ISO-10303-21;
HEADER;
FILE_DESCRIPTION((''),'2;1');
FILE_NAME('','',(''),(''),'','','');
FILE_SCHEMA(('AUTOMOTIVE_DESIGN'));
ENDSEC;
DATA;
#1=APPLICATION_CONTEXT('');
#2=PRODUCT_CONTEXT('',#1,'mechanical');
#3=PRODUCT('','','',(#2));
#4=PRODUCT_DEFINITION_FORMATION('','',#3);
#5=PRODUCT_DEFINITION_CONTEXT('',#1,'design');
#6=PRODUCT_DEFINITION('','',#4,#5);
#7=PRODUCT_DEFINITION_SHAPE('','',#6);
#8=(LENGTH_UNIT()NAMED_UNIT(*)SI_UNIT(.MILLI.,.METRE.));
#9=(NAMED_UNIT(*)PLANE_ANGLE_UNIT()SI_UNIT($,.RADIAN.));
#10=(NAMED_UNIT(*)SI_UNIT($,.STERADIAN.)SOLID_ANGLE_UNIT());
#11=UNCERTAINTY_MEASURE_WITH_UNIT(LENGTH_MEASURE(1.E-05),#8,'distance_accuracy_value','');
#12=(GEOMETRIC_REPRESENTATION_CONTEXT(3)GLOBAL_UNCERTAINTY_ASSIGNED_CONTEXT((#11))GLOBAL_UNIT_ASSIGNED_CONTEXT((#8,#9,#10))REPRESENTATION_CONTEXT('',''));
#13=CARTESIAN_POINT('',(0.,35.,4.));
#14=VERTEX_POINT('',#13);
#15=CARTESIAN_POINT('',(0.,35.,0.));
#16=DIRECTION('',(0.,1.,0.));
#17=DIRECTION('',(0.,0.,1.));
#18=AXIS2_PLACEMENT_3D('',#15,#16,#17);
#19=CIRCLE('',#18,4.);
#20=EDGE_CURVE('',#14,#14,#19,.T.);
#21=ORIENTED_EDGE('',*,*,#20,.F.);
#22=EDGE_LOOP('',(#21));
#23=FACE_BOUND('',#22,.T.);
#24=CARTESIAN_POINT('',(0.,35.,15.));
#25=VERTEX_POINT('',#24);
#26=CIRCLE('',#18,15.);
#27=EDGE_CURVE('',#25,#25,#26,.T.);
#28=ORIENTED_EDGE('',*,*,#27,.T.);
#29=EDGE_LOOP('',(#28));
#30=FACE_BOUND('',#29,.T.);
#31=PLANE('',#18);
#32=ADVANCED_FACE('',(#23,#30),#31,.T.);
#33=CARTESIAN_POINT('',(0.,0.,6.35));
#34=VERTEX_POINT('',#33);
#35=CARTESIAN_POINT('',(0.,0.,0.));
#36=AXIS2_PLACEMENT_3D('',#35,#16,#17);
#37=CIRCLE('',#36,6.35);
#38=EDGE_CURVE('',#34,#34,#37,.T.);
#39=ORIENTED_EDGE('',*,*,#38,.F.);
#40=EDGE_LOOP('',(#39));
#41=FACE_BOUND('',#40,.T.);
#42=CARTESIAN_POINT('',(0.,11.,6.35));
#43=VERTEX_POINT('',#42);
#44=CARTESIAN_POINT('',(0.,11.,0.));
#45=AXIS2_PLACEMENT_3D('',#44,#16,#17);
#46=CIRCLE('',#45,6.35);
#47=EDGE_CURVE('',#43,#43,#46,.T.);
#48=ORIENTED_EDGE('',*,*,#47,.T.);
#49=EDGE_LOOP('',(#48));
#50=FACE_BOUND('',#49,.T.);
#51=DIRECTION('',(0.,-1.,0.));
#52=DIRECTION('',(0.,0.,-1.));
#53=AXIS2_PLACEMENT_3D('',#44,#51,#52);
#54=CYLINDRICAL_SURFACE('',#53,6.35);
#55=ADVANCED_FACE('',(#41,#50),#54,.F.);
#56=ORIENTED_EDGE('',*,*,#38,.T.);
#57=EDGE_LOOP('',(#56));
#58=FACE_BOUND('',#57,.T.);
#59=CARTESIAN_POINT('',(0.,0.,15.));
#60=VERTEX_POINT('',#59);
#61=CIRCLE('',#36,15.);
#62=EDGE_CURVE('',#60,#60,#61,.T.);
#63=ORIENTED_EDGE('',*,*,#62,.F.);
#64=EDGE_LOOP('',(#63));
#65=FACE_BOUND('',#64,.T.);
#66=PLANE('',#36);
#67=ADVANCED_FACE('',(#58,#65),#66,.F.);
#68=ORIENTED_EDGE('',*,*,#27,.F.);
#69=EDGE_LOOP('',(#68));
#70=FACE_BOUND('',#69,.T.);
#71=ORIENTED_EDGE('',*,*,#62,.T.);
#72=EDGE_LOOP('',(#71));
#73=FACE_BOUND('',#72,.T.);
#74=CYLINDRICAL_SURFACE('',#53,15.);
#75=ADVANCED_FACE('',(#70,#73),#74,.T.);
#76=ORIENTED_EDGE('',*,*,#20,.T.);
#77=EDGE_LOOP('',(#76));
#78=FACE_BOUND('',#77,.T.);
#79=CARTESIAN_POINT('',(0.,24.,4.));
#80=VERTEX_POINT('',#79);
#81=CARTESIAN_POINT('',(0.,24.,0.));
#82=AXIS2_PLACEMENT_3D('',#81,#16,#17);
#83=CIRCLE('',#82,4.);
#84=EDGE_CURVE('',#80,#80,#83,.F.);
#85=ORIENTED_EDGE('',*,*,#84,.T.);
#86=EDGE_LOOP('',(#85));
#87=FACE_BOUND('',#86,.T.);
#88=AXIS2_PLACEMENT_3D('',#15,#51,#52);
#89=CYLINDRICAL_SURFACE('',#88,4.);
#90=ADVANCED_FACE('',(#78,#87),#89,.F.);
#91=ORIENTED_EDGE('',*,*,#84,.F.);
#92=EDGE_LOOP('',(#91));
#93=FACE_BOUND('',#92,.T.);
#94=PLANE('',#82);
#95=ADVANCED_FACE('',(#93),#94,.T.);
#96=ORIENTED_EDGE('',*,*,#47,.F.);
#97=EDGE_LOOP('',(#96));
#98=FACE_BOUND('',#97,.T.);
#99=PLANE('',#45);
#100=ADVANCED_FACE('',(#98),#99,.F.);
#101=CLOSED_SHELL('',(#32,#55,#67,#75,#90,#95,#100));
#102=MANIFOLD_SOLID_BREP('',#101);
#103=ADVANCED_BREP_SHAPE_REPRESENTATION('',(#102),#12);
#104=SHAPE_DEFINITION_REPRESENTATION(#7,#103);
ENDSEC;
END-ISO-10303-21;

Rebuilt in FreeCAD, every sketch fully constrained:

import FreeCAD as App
import Part
import Sketcher
Q = App.Units.Quantity

doc = App.newDocument("Part")
body = doc.addObject("PartDesign::Body", "Body")

# Sketch on XZ plane
sketch1 = body.newObject("Sketcher::SketchObject", "Sketch")
sketch1.AttachmentSupport = (doc.getObject("XZ_Plane"), [""])
sketch1.MapMode = "FlatFace"
sketch1.addGeometry(Part.Circle(App.Vector(0, 0, 0), App.Vector(0, 0, 1), 15), False)
sketch1.addGeometry(Part.Circle(App.Vector(0, 0, 0), App.Vector(0, 0, 1), 6), False)
sketch1.addConstraint(Sketcher.Constraint("Coincident", 0, 3, -1, 1))
sketch1.addConstraint(Sketcher.Constraint("Coincident", 1, 3, -1, 1))
sketch1.addConstraint(Sketcher.Constraint("Diameter", 0, Q("30 mm")))
sketch1.addConstraint(Sketcher.Constraint("Diameter", 1, Q("12.7 mm")))
pad1 = body.newObject("PartDesign::Pad", "Pad")
pad1.Profile = sketch1
pad1.Length = 11
pad1.Reversed = True

# Sketch on XZ plane
sketch2 = body.newObject("Sketcher::SketchObject", "Sketch001")
sketch2.AttachmentSupport = (doc.getObject("XZ_Plane"), [""])
sketch2.MapMode = "FlatFace"
sketch2.AttachmentOffset = App.Placement(App.Vector(0, 0, -11), App.Rotation())
sketch2.addGeometry(Part.Circle(App.Vector(0, 0, 0), App.Vector(0, 0, 1), 15), False)
sketch2.addConstraint(Sketcher.Constraint("Coincident", 0, 3, -1, 1))
sketch2.addConstraint(Sketcher.Constraint("Diameter", 0, Q("30 mm")))
pad2 = body.newObject("PartDesign::Pad", "Pad001")
pad2.Profile = sketch2
pad2.Length = 13
pad2.Reversed = True

# Sketch on XZ plane
sketch3 = body.newObject("Sketcher::SketchObject", "Sketch002")
sketch3.AttachmentSupport = (doc.getObject("XZ_Plane"), [""])
sketch3.MapMode = "FlatFace"
sketch3.AttachmentOffset = App.Placement(App.Vector(0, 0, -24), App.Rotation())
sketch3.addGeometry(Part.Circle(App.Vector(0, 0, 0), App.Vector(0, 0, 1), 15), False)
sketch3.addGeometry(Part.Circle(App.Vector(0, 0, 0), App.Vector(0, 0, 1), 4), False)
sketch3.addConstraint(Sketcher.Constraint("Coincident", 0, 3, -1, 1))
sketch3.addConstraint(Sketcher.Constraint("Coincident", 1, 3, -1, 1))
sketch3.addConstraint(Sketcher.Constraint("Diameter", 0, Q("30 mm")))
sketch3.addConstraint(Sketcher.Constraint("Diameter", 1, Q("8 mm")))
pad3 = body.newObject("PartDesign::Pad", "Pad002")
pad3.Profile = sketch3
pad3.Length = 11
pad3.Reversed = True

doc.recompute()
